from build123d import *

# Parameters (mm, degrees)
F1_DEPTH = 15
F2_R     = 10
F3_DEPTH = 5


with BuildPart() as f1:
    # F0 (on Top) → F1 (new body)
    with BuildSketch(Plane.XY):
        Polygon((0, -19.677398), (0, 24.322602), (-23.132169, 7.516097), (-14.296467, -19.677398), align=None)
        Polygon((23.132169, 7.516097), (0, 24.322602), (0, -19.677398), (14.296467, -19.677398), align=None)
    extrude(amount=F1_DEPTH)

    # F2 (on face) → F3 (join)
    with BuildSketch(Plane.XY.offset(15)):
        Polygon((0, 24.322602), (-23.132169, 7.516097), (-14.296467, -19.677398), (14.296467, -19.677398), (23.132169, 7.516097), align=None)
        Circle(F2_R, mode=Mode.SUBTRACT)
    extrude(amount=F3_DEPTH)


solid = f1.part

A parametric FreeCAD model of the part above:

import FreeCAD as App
import Part
import Sketcher
Q = App.Units.Quantity


def add_polygon(sketch, points):
    """Adds a closed chain of lines whose ends are joined by coincident constraints."""
    first, n = sketch.GeometryCount, len(points)
    for a, b in zip(points, points[1:] + points[:1]):
        sketch.addGeometry(Part.LineSegment(App.Vector(*a, 0), App.Vector(*b, 0)), False)
    for i in range(n):
        sketch.addConstraint(Sketcher.Constraint("Coincident", first + i, 2, first + (i + 1) % n, 1))

doc = App.newDocument("Part")
body = doc.addObject("PartDesign::Body", "Body")

sketch1 = doc.addObject("Sketcher::SketchObject", "Sketch")
body.addObject(sketch1)
sketch1.AttachmentSupport = (doc.XY_Plane, [""])
sketch1.MapMode = "FlatFace"
add_polygon(sketch1, [(0, 24.322602), (-23.132169, 7.516097), (-14.296467, -19.677398), (14.296467, -19.677398), (23.132169, 7.516097)])
sketch1.addConstraint([
    Sketcher.Constraint("Horizontal", 2),
    Sketcher.Constraint("Symmetric", 0, 2, 3, 2, -2),
    Sketcher.Constraint("PointOnObject", 4, 2, -2),
    Sketcher.Constraint("Equal", 0, 1),
    Sketcher.Constraint("Equal", 1, 3),
    Sketcher.Constraint("Angle", 0, Q("-143.999999 deg")),
    Sketcher.Constraint("Angle", 1, Q("-72 deg")),
    Sketcher.Constraint("DistanceY", 1, 2, 4, 2, Q("44 mm")),
    Sketcher.Constraint("DistanceY", 1, 2, -1, 1, Q("19.677398 mm")),
])
pad1 = doc.addObject("PartDesign::Pad", "Pad")
body.addObject(pad1)
pad1.Profile = sketch1
pad1.Length = 15

sketch2 = doc.addObject("Sketcher::SketchObject", "Sketch001")
body.addObject(sketch2)
sketch2.AttachmentSupport = (doc.XY_Plane, [""])
sketch2.MapMode = "FlatFace"
sketch2.AttachmentOffset = App.Placement(App.Vector(0, 0, 15), App.Rotation())
add_polygon(sketch2, [(0, 24.322602), (-23.132169, 7.516097), (-14.296467, -19.677398), (14.296467, -19.677398), (23.132169, 7.516097)])
sketch2.addGeometry(Part.Circle(App.Vector(0, 0, 0), App.Vector(0, 0, 1), 10), False)
sketch2.addConstraint([
    Sketcher.Constraint("Horizontal", 2),
    Sketcher.Constraint("Coincident", 5, 3, -1, 1),
    Sketcher.Constraint("Symmetric", 0, 2, 3, 2, -2),
    Sketcher.Constraint("PointOnObject", 4, 2, -2),
    Sketcher.Constraint("Equal", 0, 1),
    Sketcher.Constraint("Equal", 1, 3),
    Sketcher.Constraint("Diameter", 5, Q("20 mm")),
    Sketcher.Constraint("Angle", 0, Q("-143.999999 deg")),
    Sketcher.Constraint("Angle", 1, Q("-72 deg")),
    Sketcher.Constraint("DistanceY", 1, 2, 4, 2, Q("44 mm")),
    Sketcher.Constraint("DistanceY", 1, 2, -1, 1, Q("19.677398 mm")),
])
pad2 = doc.addObject("PartDesign::Pad", "Pad001")
body.addObject(pad2)
pad2.Profile = sketch2
pad2.Length = 5

doc.recompute()
